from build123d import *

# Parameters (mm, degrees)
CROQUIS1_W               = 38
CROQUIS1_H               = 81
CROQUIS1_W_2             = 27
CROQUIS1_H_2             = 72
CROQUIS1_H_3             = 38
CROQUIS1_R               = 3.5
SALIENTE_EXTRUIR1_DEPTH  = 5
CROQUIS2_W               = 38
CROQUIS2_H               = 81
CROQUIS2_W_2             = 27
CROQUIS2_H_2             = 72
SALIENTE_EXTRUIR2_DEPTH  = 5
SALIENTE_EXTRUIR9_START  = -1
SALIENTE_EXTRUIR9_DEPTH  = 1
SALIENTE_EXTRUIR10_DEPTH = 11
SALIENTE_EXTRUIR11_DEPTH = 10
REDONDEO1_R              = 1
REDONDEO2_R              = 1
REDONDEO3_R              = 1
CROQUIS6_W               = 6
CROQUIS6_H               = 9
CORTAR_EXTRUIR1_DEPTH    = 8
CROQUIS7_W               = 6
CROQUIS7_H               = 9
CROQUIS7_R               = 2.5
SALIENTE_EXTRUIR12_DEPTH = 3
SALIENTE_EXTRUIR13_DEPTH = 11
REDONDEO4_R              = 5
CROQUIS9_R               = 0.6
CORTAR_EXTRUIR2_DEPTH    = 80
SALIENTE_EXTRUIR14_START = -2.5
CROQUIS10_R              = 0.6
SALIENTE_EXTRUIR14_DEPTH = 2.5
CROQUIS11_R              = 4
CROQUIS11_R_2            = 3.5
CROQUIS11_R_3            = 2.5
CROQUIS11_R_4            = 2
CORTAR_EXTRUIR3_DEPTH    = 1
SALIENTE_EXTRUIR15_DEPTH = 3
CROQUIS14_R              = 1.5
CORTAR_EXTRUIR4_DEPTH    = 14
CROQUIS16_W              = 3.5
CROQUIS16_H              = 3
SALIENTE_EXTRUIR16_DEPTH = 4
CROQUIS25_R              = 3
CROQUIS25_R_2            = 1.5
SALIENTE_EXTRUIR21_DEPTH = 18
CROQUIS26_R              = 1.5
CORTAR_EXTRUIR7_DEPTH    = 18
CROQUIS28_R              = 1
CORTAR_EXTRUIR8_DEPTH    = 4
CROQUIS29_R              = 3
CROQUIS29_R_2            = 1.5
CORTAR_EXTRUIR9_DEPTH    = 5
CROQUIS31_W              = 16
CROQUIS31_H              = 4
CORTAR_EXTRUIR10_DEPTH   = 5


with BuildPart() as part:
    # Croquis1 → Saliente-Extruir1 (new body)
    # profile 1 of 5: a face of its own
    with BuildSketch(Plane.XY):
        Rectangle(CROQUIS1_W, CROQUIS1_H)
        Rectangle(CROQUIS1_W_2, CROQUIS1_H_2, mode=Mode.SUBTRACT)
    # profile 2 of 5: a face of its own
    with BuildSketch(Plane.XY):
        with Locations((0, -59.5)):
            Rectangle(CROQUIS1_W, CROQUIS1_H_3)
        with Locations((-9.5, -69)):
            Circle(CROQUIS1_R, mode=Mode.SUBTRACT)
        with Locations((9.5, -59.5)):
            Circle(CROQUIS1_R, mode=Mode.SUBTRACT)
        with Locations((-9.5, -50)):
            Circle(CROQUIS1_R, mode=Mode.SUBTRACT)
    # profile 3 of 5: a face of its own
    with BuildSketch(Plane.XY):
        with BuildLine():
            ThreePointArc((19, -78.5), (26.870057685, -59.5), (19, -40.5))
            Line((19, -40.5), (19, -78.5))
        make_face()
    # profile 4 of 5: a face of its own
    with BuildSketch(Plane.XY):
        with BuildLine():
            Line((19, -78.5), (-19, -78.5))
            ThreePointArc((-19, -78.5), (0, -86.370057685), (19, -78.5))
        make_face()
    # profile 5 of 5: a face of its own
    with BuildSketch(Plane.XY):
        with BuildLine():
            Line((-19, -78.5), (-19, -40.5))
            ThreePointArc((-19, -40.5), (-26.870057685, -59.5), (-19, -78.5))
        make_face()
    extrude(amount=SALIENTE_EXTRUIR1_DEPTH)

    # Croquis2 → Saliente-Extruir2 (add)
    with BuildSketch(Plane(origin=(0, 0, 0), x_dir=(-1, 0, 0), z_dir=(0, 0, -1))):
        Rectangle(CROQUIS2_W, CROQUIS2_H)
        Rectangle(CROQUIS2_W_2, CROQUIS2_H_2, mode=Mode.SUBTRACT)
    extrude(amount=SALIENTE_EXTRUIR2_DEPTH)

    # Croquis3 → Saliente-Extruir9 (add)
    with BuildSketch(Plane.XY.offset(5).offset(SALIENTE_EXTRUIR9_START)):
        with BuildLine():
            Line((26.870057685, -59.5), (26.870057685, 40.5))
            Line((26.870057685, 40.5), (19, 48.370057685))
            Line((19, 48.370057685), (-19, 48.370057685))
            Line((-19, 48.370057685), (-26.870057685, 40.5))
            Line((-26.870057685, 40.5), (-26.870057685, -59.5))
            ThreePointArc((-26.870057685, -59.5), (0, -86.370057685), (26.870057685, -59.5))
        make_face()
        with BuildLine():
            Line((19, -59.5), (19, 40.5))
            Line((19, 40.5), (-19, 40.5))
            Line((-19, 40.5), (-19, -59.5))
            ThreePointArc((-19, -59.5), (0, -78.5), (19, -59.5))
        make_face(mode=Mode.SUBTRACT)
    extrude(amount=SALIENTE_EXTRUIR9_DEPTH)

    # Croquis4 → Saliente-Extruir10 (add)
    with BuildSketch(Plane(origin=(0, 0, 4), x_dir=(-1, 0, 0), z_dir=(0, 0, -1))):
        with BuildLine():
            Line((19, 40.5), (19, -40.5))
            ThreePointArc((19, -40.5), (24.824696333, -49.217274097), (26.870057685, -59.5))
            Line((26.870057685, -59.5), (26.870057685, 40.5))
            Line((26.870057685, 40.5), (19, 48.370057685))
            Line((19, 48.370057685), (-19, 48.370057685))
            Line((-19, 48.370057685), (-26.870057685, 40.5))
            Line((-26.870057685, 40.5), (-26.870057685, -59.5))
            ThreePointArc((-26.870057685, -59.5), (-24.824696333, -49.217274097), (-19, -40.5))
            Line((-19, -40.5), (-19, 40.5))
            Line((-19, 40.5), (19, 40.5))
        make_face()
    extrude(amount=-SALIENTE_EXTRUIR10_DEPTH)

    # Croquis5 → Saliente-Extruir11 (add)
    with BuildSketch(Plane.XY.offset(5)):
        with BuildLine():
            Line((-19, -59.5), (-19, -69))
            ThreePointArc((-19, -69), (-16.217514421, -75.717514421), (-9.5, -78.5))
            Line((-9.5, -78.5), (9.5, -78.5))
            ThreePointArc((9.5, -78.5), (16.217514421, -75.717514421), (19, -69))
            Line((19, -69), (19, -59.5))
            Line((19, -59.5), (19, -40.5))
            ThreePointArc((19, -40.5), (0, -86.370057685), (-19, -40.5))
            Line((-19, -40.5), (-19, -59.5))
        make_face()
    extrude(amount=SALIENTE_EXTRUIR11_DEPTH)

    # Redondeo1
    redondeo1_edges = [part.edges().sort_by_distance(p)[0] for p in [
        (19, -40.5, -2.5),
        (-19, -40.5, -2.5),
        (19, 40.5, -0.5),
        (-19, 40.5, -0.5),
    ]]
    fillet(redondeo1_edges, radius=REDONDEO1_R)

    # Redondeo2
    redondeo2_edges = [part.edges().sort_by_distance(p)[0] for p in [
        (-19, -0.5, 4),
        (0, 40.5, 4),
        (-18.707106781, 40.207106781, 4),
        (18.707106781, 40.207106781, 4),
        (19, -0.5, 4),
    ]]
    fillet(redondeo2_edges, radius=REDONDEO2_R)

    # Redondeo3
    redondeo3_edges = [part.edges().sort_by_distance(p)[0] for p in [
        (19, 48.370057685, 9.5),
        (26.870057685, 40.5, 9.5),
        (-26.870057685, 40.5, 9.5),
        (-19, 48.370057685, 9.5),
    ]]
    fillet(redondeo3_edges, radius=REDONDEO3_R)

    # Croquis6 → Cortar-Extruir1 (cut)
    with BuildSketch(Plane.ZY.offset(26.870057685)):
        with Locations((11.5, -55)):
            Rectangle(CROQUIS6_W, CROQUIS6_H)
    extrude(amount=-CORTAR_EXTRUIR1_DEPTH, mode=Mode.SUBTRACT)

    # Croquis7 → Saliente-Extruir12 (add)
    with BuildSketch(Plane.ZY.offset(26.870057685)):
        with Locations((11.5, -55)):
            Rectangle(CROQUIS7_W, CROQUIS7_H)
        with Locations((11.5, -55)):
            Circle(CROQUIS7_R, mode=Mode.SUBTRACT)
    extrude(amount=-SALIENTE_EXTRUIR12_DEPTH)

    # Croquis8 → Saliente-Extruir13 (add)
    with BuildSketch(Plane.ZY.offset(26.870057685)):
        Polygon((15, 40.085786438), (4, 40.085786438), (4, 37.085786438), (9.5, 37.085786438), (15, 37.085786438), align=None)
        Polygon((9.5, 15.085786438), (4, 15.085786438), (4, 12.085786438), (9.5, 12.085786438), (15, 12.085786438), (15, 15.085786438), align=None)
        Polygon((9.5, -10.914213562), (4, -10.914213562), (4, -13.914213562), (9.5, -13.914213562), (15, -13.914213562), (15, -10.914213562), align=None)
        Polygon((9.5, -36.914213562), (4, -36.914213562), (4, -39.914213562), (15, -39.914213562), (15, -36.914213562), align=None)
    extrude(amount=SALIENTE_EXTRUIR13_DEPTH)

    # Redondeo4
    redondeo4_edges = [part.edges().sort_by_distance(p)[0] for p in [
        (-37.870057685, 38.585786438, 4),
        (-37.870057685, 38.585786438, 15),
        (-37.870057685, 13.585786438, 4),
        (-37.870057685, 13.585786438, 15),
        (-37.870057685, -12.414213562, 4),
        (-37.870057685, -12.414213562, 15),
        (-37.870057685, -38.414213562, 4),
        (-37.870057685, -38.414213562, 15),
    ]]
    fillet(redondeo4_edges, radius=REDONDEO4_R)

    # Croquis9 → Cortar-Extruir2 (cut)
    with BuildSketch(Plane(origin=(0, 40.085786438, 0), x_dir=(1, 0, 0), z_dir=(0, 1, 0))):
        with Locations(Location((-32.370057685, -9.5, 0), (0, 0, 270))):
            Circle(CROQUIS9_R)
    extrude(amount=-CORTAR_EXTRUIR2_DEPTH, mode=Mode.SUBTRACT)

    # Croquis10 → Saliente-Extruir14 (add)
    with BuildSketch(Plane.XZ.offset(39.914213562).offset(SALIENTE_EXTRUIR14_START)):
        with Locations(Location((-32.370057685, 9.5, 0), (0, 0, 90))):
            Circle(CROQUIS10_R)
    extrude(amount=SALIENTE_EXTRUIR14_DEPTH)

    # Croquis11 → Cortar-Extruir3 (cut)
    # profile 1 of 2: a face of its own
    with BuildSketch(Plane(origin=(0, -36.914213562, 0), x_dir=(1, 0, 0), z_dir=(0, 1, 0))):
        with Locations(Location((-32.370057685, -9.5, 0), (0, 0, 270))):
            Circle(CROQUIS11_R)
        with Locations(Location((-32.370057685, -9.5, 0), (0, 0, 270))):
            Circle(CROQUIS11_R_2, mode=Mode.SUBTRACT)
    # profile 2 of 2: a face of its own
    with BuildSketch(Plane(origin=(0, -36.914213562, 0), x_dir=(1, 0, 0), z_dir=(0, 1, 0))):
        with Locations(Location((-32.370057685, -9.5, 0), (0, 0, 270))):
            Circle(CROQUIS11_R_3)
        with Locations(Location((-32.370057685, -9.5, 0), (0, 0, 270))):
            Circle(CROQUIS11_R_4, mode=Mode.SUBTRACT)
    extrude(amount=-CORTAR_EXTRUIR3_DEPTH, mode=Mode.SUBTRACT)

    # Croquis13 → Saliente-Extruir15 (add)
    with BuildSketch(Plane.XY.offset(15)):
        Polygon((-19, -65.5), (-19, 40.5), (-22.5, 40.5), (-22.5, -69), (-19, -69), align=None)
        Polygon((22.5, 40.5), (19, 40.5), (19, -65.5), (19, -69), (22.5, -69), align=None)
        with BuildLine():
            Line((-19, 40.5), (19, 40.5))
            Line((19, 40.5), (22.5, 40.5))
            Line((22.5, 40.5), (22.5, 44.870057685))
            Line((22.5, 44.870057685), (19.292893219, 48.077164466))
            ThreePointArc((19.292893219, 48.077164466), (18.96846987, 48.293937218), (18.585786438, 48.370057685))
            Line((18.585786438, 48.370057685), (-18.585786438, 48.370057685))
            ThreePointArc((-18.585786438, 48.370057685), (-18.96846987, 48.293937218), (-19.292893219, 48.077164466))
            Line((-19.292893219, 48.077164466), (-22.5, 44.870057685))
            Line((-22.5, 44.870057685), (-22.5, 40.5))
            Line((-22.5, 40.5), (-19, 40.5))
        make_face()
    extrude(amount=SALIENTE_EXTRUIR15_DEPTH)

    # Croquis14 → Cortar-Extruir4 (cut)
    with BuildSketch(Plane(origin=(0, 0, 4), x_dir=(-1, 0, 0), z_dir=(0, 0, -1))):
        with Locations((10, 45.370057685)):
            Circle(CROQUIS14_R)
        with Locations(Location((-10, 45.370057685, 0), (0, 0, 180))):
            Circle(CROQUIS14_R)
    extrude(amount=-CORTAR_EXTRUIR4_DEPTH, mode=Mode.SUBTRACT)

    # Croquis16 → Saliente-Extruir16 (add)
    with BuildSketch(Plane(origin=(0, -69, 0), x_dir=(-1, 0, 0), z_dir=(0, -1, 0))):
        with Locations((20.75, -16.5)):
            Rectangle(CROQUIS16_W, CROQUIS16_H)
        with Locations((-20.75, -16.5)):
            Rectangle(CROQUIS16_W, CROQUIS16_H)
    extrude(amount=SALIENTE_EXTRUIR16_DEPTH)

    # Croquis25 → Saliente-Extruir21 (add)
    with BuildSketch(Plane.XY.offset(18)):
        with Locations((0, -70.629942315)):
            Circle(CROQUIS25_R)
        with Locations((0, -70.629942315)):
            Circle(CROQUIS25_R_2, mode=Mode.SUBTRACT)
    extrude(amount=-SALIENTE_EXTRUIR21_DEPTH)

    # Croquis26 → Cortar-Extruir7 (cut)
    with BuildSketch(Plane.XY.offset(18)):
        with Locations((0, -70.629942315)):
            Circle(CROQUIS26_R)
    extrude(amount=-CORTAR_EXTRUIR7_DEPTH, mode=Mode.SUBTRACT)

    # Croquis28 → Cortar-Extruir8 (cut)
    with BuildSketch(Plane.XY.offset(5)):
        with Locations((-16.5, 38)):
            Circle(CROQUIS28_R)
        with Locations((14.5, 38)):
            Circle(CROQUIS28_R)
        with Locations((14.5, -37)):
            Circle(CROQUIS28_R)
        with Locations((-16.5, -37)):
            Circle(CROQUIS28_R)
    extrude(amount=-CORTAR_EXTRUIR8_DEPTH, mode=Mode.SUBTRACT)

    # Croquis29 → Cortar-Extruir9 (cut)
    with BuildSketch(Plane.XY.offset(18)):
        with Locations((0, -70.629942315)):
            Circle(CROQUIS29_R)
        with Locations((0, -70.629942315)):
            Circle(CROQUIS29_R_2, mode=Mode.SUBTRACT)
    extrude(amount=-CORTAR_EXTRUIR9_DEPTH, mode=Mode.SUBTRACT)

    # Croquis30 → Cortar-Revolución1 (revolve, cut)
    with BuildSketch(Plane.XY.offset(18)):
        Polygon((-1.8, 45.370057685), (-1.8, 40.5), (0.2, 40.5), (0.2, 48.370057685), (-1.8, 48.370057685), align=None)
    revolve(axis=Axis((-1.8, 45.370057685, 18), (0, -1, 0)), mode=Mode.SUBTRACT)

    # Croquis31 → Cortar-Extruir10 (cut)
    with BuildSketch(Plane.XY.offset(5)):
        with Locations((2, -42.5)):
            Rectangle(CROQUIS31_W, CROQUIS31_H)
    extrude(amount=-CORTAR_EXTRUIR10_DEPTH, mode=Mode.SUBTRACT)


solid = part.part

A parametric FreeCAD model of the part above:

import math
import FreeCAD as App
import Part
import Sketcher

V = App.Vector


def edges_at(feature, points):
    """Names of the edges that pass closest to the given points."""
    edges = feature.Shape.Edges
    near = lambda p: min(range(len(edges)), key=lambda i: edges[i].distToShape(Part.Vertex(*p))[0])
    return sorted({f"Edge{near(p) + 1}" for p in points})

doc = App.newDocument("Part")
body = doc.addObject("PartDesign::Body", "Body")

# Sketch on XY plane
sketch1 = body.newObject("Sketcher::SketchObject", "Sketch")
sketch1.AttachmentSupport = (doc.getObject("XY_Plane"), [""])
sketch1.MapMode = "FlatFace"
sketch1.addGeometry(Part.LineSegment(V(-19, 40.5, 0), V(-19, -40.5, 0)), False)
sketch1.addGeometry(Part.ArcOfCircle(Part.Circle(V(0, -59.5, 0), V(0, 0, 1), 26.9), math.radians(135), math.radians(225)), False)
sketch1.addGeometry(Part.ArcOfCircle(Part.Circle(V(0, -59.5, 0), V(0, 0, 1), 26.9), math.radians(-135), math.radians(-45)), False)
sketch1.addGeometry(Part.ArcOfCircle(Part.Circle(V(0, -59.5, 0), V(0, 0, 1), 26.9), math.radians(-45), math.radians(45)), False)
sketch1.addGeometry(Part.LineSegment(V(19, -40.5, 0), V(19, 40.5, 0)), False)
sketch1.addGeometry(Part.LineSegment(V(19, 40.5, 0), V(-19, 40.5, 0)), False)
sketch1.addGeometry(Part.LineSegment(V(13.5, -36, 0), V(-13.5, -36, 0)), False)
sketch1.addGeometry(Part.LineSegment(V(-13.5, -36, 0), V(-13.5, 36, 0)), False)
sketch1.addGeometry(Part.LineSegment(V(-13.5, 36, 0), V(13.5, 36, 0)), False)
sketch1.addGeometry(Part.LineSegment(V(13.5, 36, 0), V(13.5, -36, 0)), False)
sketch1.addGeometry(Part.Circle(V(9.5, -59.5, 0), V(0, 0, 1), 3.5), False)
sketch1.addGeometry(Part.Circle(V(-9.5, -69, 0), V(0, 0, 1), 3.5), False)
sketch1.addGeometry(Part.Circle(V(-9.5, -50, 0), V(0, 0, 1), 3.5), False)
sketch1.addConstraint(Sketcher.Constraint("Coincident", 0, 2, 1, 1))
sketch1.addConstraint(Sketcher.Constraint("Tangent", 1, 2, 2, 1))
sketch1.addConstraint(Sketcher.Constraint("Tangent", 2, 2, 3, 1))
sketch1.addConstraint(Sketcher.Constraint("Coincident", 3, 2, 4, 1))
sketch1.addConstraint(Sketcher.Constraint("Coincident", 4, 2, 5, 1))
sketch1.addConstraint(Sketcher.Constraint("Coincident", 5, 2, 0, 1))
sketch1.addConstraint(Sketcher.Constraint("Coincident", 6, 2, 7, 1))
sketch1.addConstraint(Sketcher.Constraint("Coincident", 7, 2, 8, 1))
sketch1.addConstraint(Sketcher.Constraint("Coincident", 8, 2, 9, 1))
sketch1.addConstraint(Sketcher.Constraint("Coincident", 9, 2, 6, 1))
sketch1.addConstraint(Sketcher.Constraint("Vertical", 0))
sketch1.addConstraint(Sketcher.Constraint("Vertical", 4))
sketch1.addConstraint(Sketcher.Constraint("Horizontal", 5))
sketch1.addConstraint(Sketcher.Constraint("Horizontal", 6))
sketch1.addConstraint(Sketcher.Constraint("Vertical", 7))
sketch1.addConstraint(Sketcher.Constraint("Horizontal", 8))
sketch1.addConstraint(Sketcher.Constraint("Vertical", 9))
sketch1.addConstraint(Sketcher.Constraint("Coincident", 3, 3, 1, 3))
sketch1.addConstraint(Sketcher.Constraint("Equal", 10, 11))
sketch1.addConstraint(Sketcher.Constraint("Equal", 11, 12))
sketch1.addConstraint(Sketcher.Constraint("Symmetric", 0, 2, 4, 2, -1, 1))
sketch1.addConstraint(Sketcher.Constraint("Symmetric", 6, 2, 8, 2, -1, 1))
sketch1.addConstraint(Sketcher.Constraint("Symmetric", 1, 2, 2, 2, -2))
sketch1.addConstraint(Sketcher.Constraint("Horizontal", 3, 3, 10, 3))
sketch1.addConstraint(Sketcher.Constraint("Vertical", 11, 3, 12, 3))
sketch1.addConstraint(Sketcher.Constraint("Vertical", 0, 2, 1, 2))
sketch1.addConstraint(Sketcher.Constraint("Diameter", 10, 7.0))
sketch1.addConstraint(Sketcher.Constraint("DistanceX", 5, 2, 5, 1, 38.0))
sketch1.addConstraint(Sketcher.Constraint("DistanceX", 6, 2, 6, 1, 27.0))
sketch1.addConstraint(Sketcher.Constraint("DistanceY", 0, 2, 0, 1, 81.0))
sketch1.addConstraint(Sketcher.Constraint("DistanceY", 7, 1, 7, 2, 72.0))
sketch1.addConstraint(Sketcher.Constraint("DistanceY", 11, 3, -1, 1, 69.0))
sketch1.addConstraint(Sketcher.Constraint("DistanceY", 12, 3, -1, 1, 50.0))
sketch1.addConstraint(Sketcher.Constraint("DistanceX", 11, 3, 10, 3, 19.0))
sketch1.addConstraint(Sketcher.Constraint("DistanceY", 1, 3, 0, 2, 19.0))
sketch1.addConstraint(Sketcher.Constraint("DistanceX", 6, 2, 12, 3, 4.0))
pad1 = body.newObject("PartDesign::Pad", "Pad")
pad1.Profile = sketch1
pad1.Length = 5

# Sketch on XY plane
sketch2 = body.newObject("Sketcher::SketchObject", "Sketch001")
sketch2.AttachmentSupport = (doc.getObject("XY_Plane"), [""])
sketch2.MapMode = "FlatFace"
sketch2.addGeometry(Part.LineSegment(V(19, 40, 0), V(19, -40, 0)), False)
sketch2.addGeometry(Part.LineSegment(V(19, -40, 0), V(-19, -40, 0)), False)
sketch2.addGeometry(Part.LineSegment(V(-19, -40, 0), V(-19, 40, 0)), False)
sketch2.addGeometry(Part.LineSegment(V(-19, 40, 0), V(19, 40, 0)), False)
sketch2.addGeometry(Part.LineSegment(V(-14, -36, 0), V(14, -36, 0)), False)
sketch2.addGeometry(Part.LineSegment(V(14, -36, 0), V(14, 36, 0)), False)
sketch2.addGeometry(Part.LineSegment(V(14, 36, 0), V(-14, 36, 0)), False)
sketch2.addGeometry(Part.LineSegment(V(-14, 36, 0), V(-14, -36, 0)), False)
sketch2.addConstraint(Sketcher.Constraint("Coincident", 0, 2, 1, 1))
sketch2.addConstraint(Sketcher.Constraint("Coincident", 1, 2, 2, 1))
sketch2.addConstraint(Sketcher.Constraint("Coincident", 2, 2, 3, 1))
sketch2.addConstraint(Sketcher.Constraint("Coincident", 3, 2, 0, 1))
sketch2.addConstraint(Sketcher.Constraint("Coincident", 4, 2, 5, 1))
sketch2.addConstraint(Sketcher.Constraint("Coincident", 5, 2, 6, 1))
sketch2.addConstraint(Sketcher.Constraint("Coincident", 6, 2, 7, 1))
sketch2.addConstraint(Sketcher.Constraint("Coincident", 7, 2, 4, 1))
sketch2.addConstraint(Sketcher.Constraint("Vertical", 0))
sketch2.addConstraint(Sketcher.Constraint("Horizontal", 1))
sketch2.addConstraint(Sketcher.Constraint("Vertical", 2))
sketch2.addConstraint(Sketcher.Constraint("Horizontal", 3))
sketch2.addConstraint(Sketcher.Constraint("Horizontal", 4))
sketch2.addConstraint(Sketcher.Constraint("Vertical", 5))
sketch2.addConstraint(Sketcher.Constraint("Horizontal", 6))
sketch2.addConstraint(Sketcher.Constraint("Vertical", 7))
sketch2.addConstraint(Sketcher.Constraint("Symmetric", 0, 2, 2, 2, -1, 1))
sketch2.addConstraint(Sketcher.Constraint("Symmetric", 4, 2, 6, 2, -1, 1))
sketch2.addConstraint(Sketcher.Constraint("DistanceX", 1, 2, 1, 1, 38.0))
sketch2.addConstraint(Sketcher.Constraint("DistanceX", 4, 1, 4, 2, 27.0))
sketch2.addConstraint(Sketcher.Constraint("DistanceY", 0, 2, 0, 1, 81.0))
sketch2.addConstraint(Sketcher.Constraint("DistanceY", 5, 1, 5, 2, 72.0))
pad2 = body.newObject("PartDesign::Pad", "Pad001")
pad2.Profile = sketch2
pad2.Length = 5
pad2.Reversed = True

# Sketch on XY plane
sketch3 = body.newObject("Sketcher::SketchObject", "Sketch002")
sketch3.AttachmentSupport = (doc.getObject("XY_Plane"), [""])
sketch3.MapMode = "FlatFace"
sketch3.AttachmentOffset = App.Placement(V(0, 0, 4), App.Rotation())
sketch3.addGeometry(Part.LineSegment(V(27, -60, 0), V(27, 40, 0)), False)
sketch3.addGeometry(Part.LineSegment(V(27, 40, 0), V(19, 48, 0)), False)
sketch3.addGeometry(Part.LineSegment(V(19, 48, 0), V(-19, 48, 0)), False)
sketch3.addGeometry(Part.LineSegment(V(-19, 48, 0), V(-27, 40, 0)), False)
sketch3.addGeometry(Part.LineSegment(V(-27, 40, 0), V(-27, -60, 0)), False)
sketch3.addGeometry(Part.ArcOfCircle(Part.Circle(V(0, -60, 0), V(0, 0, 1), 27), math.radians(180), math.radians(360)), False)
sketch3.addGeometry(Part.LineSegment(V(19, 40, 0), V(19, -60, 0)), False)
sketch3.addGeometry(Part.ArcOfCircle(Part.Circle(V(0, -60, 0), V(0, 0, 1), 19), math.radians(180), math.radians(360)), False)
sketch3.addGeometry(Part.LineSegment(V(-19, -60, 0), V(-19, 40, 0)), False)
sketch3.addGeometry(Part.LineSegment(V(-19, 40, 0), V(19, 40, 0)), False)
sketch3.addConstraint(Sketcher.Constraint("Coincident", 0, 2, 1, 1))
sketch3.addConstraint(Sketcher.Constraint("Coincident", 1, 2, 2, 1))
sketch3.addConstraint(Sketcher.Constraint("Coincident", 2, 2, 3, 1))
sketch3.addConstraint(Sketcher.Constraint("Coincident", 3, 2, 4, 1))
sketch3.addConstraint(Sketcher.Constraint("Tangent", 4, 2, 5, 1))
sketch3.addConstraint(Sketcher.Constraint("Tangent", 5, 2, 0, 1))
sketch3.addConstraint(Sketcher.Constraint("Tangent", 6, 2, 7, 2))
sketch3.addConstraint(Sketcher.Constraint("Tangent", 7, 1, 8, 1))
sketch3.addConstraint(Sketcher.Constraint("Coincident", 8, 2, 9, 1))
sketch3.addConstraint(Sketcher.Constraint("Coincident", 9, 2, 6, 1))
sketch3.addConstraint(Sketcher.Constraint("Vertical", 0))
sketch3.addConstraint(Sketcher.Constraint("Horizontal", 2))
sketch3.addConstraint(Sketcher.Constraint("Vertical", 4))
sketch3.addConstraint(Sketcher.Constraint("Vertical", 6))
sketch3.addConstraint(Sketcher.Constraint("Vertical", 8))
sketch3.addConstraint(Sketcher.Constraint("Horizontal", 9))
sketch3.addConstraint(Sketcher.Constraint("Coincident", 7, 3, 5, 3))
sketch3.addConstraint(Sketcher.Constraint("Symmetric", 0, 2, 3, 2, -2))
sketch3.addConstraint(Sketcher.Constraint("Perpendicular", 1, 3))
sketch3.addConstraint(Sketcher.Constraint("Horizontal", 3, 2, 8, 2))
sketch3.addConstraint(Sketcher.Constraint("Vertical", 1, 2, 6, 2))
sketch3.addConstraint(Sketcher.Constraint("Vertical", 2, 2, 7, 1))
sketch3.addConstraint(Sketcher.Constraint("Radius", 7, 19.0))
sketch3.addConstraint(Sketcher.Constraint("DistanceY", 0, 1, 0, 2, 100.0))
sketch3.addConstraint(Sketcher.Constraint("DistanceY", 5, 3, -1, 1, 59.5))
sketch3.addConstraint(Sketcher.Constraint("Radius", 5, 26.870058))
pad3 = body.newObject("PartDesign::Pad", "Pad002")
pad3.Profile = sketch3
pad3.Length = 1

# Sketch on XY plane
sketch4 = body.newObject("Sketcher::SketchObject", "Sketch003")
sketch4.AttachmentSupport = (doc.getObject("XY_Plane"), [""])
sketch4.MapMode = "FlatFace"
sketch4.AttachmentOffset = App.Placement(V(0, 0, 4), App.Rotation())
sketch4.addGeometry(Part.LineSegment(V(-19, 40, 0), V(-19, -40, 0)), False)
sketch4.addGeometry(Part.ArcOfCircle(Part.Circle(V(0, -59, 0), V(0, 0, 1), 27), math.radians(135), math.radians(180)), False)
sketch4.addGeometry(Part.LineSegment(V(-27, -60, 0), V(-27, 40, 0)), False)
sketch4.addGeometry(Part.LineSegment(V(-27, 40, 0), V(-19, 48, 0)), False)
sketch4.addGeometry(Part.LineSegment(V(-19, 48, 0), V(19, 48, 0)), False)
sketch4.addGeometry(Part.LineSegment(V(19, 48, 0), V(27, 40, 0)), False)
sketch4.addGeometry(Part.LineSegment(V(27, 40, 0), V(27, -60, 0)), False)
sketch4.addGeometry(Part.ArcOfCircle(Part.Circle(V(0, -59, 0), V(0, 0, 1), 27), math.radians(0), math.radians(45)), False)
sketch4.addGeometry(Part.LineSegment(V(19, -40, 0), V(19, 40, 0)), False)
sketch4.addGeometry(Part.LineSegment(V(19, 40, 0), V(-19, 40, 0)), False)
sketch4.addConstraint(Sketcher.Constraint("Coincident", 0, 2, 1, 1))
sketch4.addConstraint(Sketcher.Constraint("Tangent", 1, 2, 2, 1))
sketch4.addConstraint(Sketcher.Constraint("Coincident", 2, 2, 3, 1))
sketch4.addConstraint(Sketcher.Constraint("Coincident", 3, 2, 4, 1))
sketch4.addConstraint(Sketcher.Constraint("Coincident", 4, 2, 5, 1))
sketch4.addConstraint(Sketcher.Constraint("Coincident", 5, 2, 6, 1))
sketch4.addConstraint(Sketcher.Constraint("Tangent", 6, 2, 7, 1))
sketch4.addConstraint(Sketcher.Constraint("Coincident", 7, 2, 8, 1))
sketch4.addConstraint(Sketcher.Constraint("Coincident", 8, 2, 9, 1))
sketch4.addConstraint(Sketcher.Constraint("Coincident", 9, 2, 0, 1))
sketch4.addConstraint(Sketcher.Constraint("Vertical", 0))
sketch4.addConstraint(Sketcher.Constraint("Vertical", 2))
sketch4.addConstraint(Sketcher.Constraint("Horizontal", 4))
sketch4.addConstraint(Sketcher.Constraint("Vertical", 6))
sketch4.addConstraint(Sketcher.Constraint("Vertical", 8))
sketch4.addConstraint(Sketcher.Constraint("Horizontal", 9))
sketch4.addConstraint(Sketcher.Constraint("Coincident", 7, 3, 1, 3))
sketch4.addConstraint(Sketcher.Constraint("Equal", 1, 7))
sketch4.addConstraint(Sketcher.Constraint("Symmetric", 0, 2, 8, 2, -1, 1))
sketch4.addConstraint(Sketcher.Constraint("Symmetric", 2, 2, 5, 2, -2))
sketch4.addConstraint(Sketcher.Constraint("Perpendicular", 3, 5))
sketch4.addConstraint(Sketcher.Constraint("Horizontal", 5, 2, 8, 2))
sketch4.addConstraint(Sketcher.Constraint("Vertical", 0, 2, 3, 2))
sketch4.addConstraint(Sketcher.Constraint("Vertical", 4, 2, 7, 2))
sketch4.addConstraint(Sketcher.Constraint("DistanceX", 4, 1, 4, 2, 38.0))
sketch4.addConstraint(Sketcher.Constraint("DistanceY", 0, 2, 0, 1, 81.0))
sketch4.addConstraint(Sketcher.Constraint("DistanceY", 2, 1, 2, 2, 100.0))
pad4 = body.newObject("PartDesign::Pad", "Pad003")
pad4.Profile = sketch4
pad4.Length = 11

# Sketch on XY plane
sketch5 = body.newObject("Sketcher::SketchObject", "Sketch004")
sketch5.AttachmentSupport = (doc.getObject("XY_Plane"), [""])
sketch5.MapMode = "FlatFace"
sketch5.AttachmentOffset = App.Placement(V(0, 0, 5), App.Rotation())
sketch5.addGeometry(Part.ArcOfCircle(Part.Circle(V(-9, -69, 0), V(0, 0, 1), 10), math.radians(-180), math.radians(-90)), False)
sketch5.addGeometry(Part.LineSegment(V(-19, -69, 0), V(-19, -40, 0)), False)
sketch5.addGeometry(Part.ArcOfCircle(Part.Circle(V(0, -60, 0), V(0, 0, 1), 27), math.radians(135), math.radians(405)), False)
sketch5.addGeometry(Part.LineSegment(V(19, -40, 0), V(19, -69, 0)), False)
sketch5.addGeometry(Part.ArcOfCircle(Part.Circle(V(9, -69, 0), V(0, 0, 1), 10), math.radians(-90), math.radians(0)), False)
sketch5.addGeometry(Part.LineSegment(V(10, -78, 0), V(-10, -78, 0)), False)
sketch5.addConstraint(Sketcher.Constraint("Tangent", 0, 1, 1, 1))
sketch5.addConstraint(Sketcher.Constraint("Coincident", 1, 2, 2, 1))
sketch5.addConstraint(Sketcher.Constraint("Coincident", 2, 2, 3, 1))
sketch5.addConstraint(Sketcher.Constraint("Tangent", 3, 2, 4, 2))
sketch5.addConstraint(Sketcher.Constraint("Tangent", 4, 1, 5, 1))
sketch5.addConstraint(Sketcher.Constraint("Tangent", 5, 2, 0, 2))
sketch5.addConstraint(Sketcher.Constraint("Vertical", 1))
sketch5.addConstraint(Sketcher.Constraint("Vertical", 3))
sketch5.addConstraint(Sketcher.Constraint("Horizontal", 5))
sketch5.addConstraint(Sketcher.Constraint("Equal", 0, 4))
sketch5.addConstraint(Sketcher.Constraint("Symmetric", 1, 2, 2, 2, -2))
sketch5.addConstraint(Sketcher.Constraint("Radius", 0, 9.5))
sketch5.addConstraint(Sketcher.Constraint("DistanceX", 5, 2, 5, 1, 19.0))
sketch5.addConstraint(Sketcher.Constraint("DistanceY", 1, 1, 1, 2, 28.5))
sketch5.addConstraint(Sketcher.Constraint("DistanceY", 0, 3, -1, 1, 69.0))
sketch5.addConstraint(Sketcher.Constraint("DistanceY", 2, 3, 1, 2, 19.0))
pad5 = body.newObject("PartDesign::Pad", "Pad004")
pad5.Profile = sketch5
pad5.Length = 10
doc.recompute()

fillet = body.newObject("PartDesign::Fillet", "Fillet")
fillet.Base = (pad5, edges_at(pad5, [
    (19, -40.5, -2.5),
    (-19, -40.5, -2.5),
    (19, 40.5, -0.5),
    (-19, 40.5, -0.5),
]))
fillet.Radius = 1
doc.recompute()

fillet2 = body.newObject("PartDesign::Fillet", "Fillet001")
fillet2.Base = (fillet, edges_at(fillet, [
    (-19, -0.5, 4),
    (0, 40.5, 4),
    (-18.707, 40.207, 4),
    (18.707, 40.207, 4),
    (19, -0.5, 4),
]))
fillet2.Radius = 1
doc.recompute()

fillet3 = body.newObject("PartDesign::Fillet", "Fillet002")
fillet3.Base = (fillet2, edges_at(fillet2, [
    (19, 48.37, 9.5),
    (26.87, 40.5, 9.5),
    (-26.87, 40.5, 9.5),
    (-19, 48.37, 9.5),
]))
fillet3.Radius = 1

# Sketch on YZ plane
sketch6 = body.newObject("Sketcher::SketchObject", "Sketch005")
sketch6.AttachmentSupport = (doc.getObject("YZ_Plane"), [""])
sketch6.MapMode = "FlatFace"
sketch6.AttachmentOffset = App.Placement(V(0, 0, -26.870058), App.Rotation())
sketch6.addGeometry(Part.LineSegment(V(-50, 8, 0), V(-60, 8, 0)), False)
sketch6.addGeometry(Part.LineSegment(V(-60, 8, 0), V(-60, 14, 0)), False)
sketch6.addGeometry(Part.LineSegment(V(-60, 14, 0), V(-50, 14, 0)), False)
sketch6.addGeometry(Part.LineSegment(V(-50, 14, 0), V(-50, 8, 0)), False)
sketch6.addConstraint(Sketcher.Constraint("Coincident", 0, 2, 1, 1))
sketch6.addConstraint(Sketcher.Constraint("Coincident", 1, 2, 2, 1))
sketch6.addConstraint(Sketcher.Constraint("Coincident", 2, 2, 3, 1))
sketch6.addConstraint(Sketcher.Constraint("Coincident", 3, 2, 0, 1))
sketch6.addConstraint(Sketcher.Constraint("Horizontal", 0))
sketch6.addConstraint(Sketcher.Constraint("Vertical", 1))
sketch6.addConstraint(Sketcher.Constraint("Horizontal", 2))
sketch6.addConstraint(Sketcher.Constraint("Vertical", 3))
sketch6.addConstraint(Sketcher.Constraint("DistanceX", 0, 2, 0, 1, 9.0))
sketch6.addConstraint(Sketcher.Constraint("DistanceY", 1, 1, 1, 2, 6.0))
sketch6.addConstraint(Sketcher.Constraint("DistanceX", 0, 2, -1, 1, 59.5))
sketch6.addConstraint(Sketcher.Constraint("DistanceY", -1, 1, 0, 2, 8.5))
pocket1 = body.newObject("PartDesign::Pocket", "Pocket")
pocket1.Profile = sketch6
pocket1.Length = 8
pocket1.Reversed = True

# Sketch on YZ plane
sketch7 = body.newObject("Sketcher::SketchObject", "Sketch006")
sketch7.AttachmentSupport = (doc.getObject("YZ_Plane"), [""])
sketch7.MapMode = "FlatFace"
sketch7.AttachmentOffset = App.Placement(V(0, 0, -26.870058), App.Rotation())
sketch7.addGeometry(Part.LineSegment(V(-50.5, 8.5, 0), V(-59.5, 8.5, 0)), False)
sketch7.addGeometry(Part.LineSegment(V(-59.5, 8.5, 0), V(-59.5, 14.5, 0)), False)
sketch7.addGeometry(Part.LineSegment(V(-59.5, 14.5, 0), V(-50.5, 14.5, 0)), False)
sketch7.addGeometry(Part.LineSegment(V(-50.5, 14.5, 0), V(-50.5, 8.5, 0)), False)
sketch7.addGeometry(Part.Circle(V(-55, 11.5, 0), V(0, 0, 1), 2.5), False)
sketch7.addConstraint(Sketcher.Constraint("Coincident", 0, 2, 1, 1))
sketch7.addConstraint(Sketcher.Constraint("Coincident", 1, 2, 2, 1))
sketch7.addConstraint(Sketcher.Constraint("Coincident", 2, 2, 3, 1))
sketch7.addConstraint(Sketcher.Constraint("Coincident", 3, 2, 0, 1))
sketch7.addConstraint(Sketcher.Constraint("Horizontal", 0))
sketch7.addConstraint(Sketcher.Constraint("Vertical", 1))
sketch7.addConstraint(Sketcher.Constraint("Horizontal", 2))
sketch7.addConstraint(Sketcher.Constraint("Vertical", 3))
sketch7.addConstraint(Sketcher.Constraint("Diameter", 4, 5.0))
sketch7.addConstraint(Sketcher.Constraint("DistanceX", 0, 2, 0, 1, 9.0))
sketch7.addConstraint(Sketcher.Constraint("DistanceY", 1, 1, 1, 2, 6.0))
sketch7.addConstraint(Sketcher.Constraint("DistanceX", 4, 3, -1, 1, 55.0))
sketch7.addConstraint(Sketcher.Constraint("DistanceY", 0, 2, 4, 3, 3.0))
sketch7.addConstraint(Sketcher.Constraint("DistanceY", -1, 1, 4, 3, 11.5))
sketch7.addConstraint(Sketcher.Constraint("DistanceX", 0, 2, -1, 1, 59.5))
pad6 = body.newObject("PartDesign::Pad", "Pad005")
pad6.Profile = sketch7
pad6.Length = 3

# Sketch on YZ plane
sketch8 = body.newObject("Sketcher::SketchObject", "Sketch007")
sketch8.AttachmentSupport = (doc.getObject("YZ_Plane"), [""])
sketch8.MapMode = "FlatFace"
sketch8.AttachmentOffset = App.Placement(V(0, 0, -26.870058), App.Rotation())
sketch8.addGeometry(Part.LineSegment(V(40.1, 15, 0), V(40.1, 4, 0)), False)
sketch8.addGeometry(Part.LineSegment(V(40.1, 4, 0), V(37.1, 4, 0)), False)
sketch8.addGeometry(Part.LineSegment(V(37.1, 4, 0), V(37.1, 15, 0)), False)
sketch8.addGeometry(Part.LineSegment(V(37.1, 15, 0), V(40.1, 15, 0)), False)
sketch8.addGeometry(Part.LineSegment(V(15.1, 4, 0), V(12.1, 4, 0)), False)
sketch8.addGeometry(Part.LineSegment(V(12.1, 4, 0), V(12.1, 15, 0)), False)
sketch8.addGeometry(Part.LineSegment(V(12.1, 15, 0), V(15.1, 15, 0)), False)
sketch8.addGeometry(Part.LineSegment(V(15.1, 15, 0), V(15.1, 4, 0)), False)
sketch8.addGeometry(Part.LineSegment(V(-10.9, 4, 0), V(-13.9, 4, 0)), False)
sketch8.addGeometry(Part.LineSegment(V(-13.9, 4, 0), V(-13.9, 15, 0)), False)
sketch8.addGeometry(Part.LineSegment(V(-13.9, 15, 0), V(-10.9, 15, 0)), False)
sketch8.addGeometry(Part.LineSegment(V(-10.9, 15, 0), V(-10.9, 4, 0)), False)
sketch8.addGeometry(Part.LineSegment(V(-36.9, 4, 0), V(-39.9, 4, 0)), False)
sketch8.addGeometry(Part.LineSegment(V(-39.9, 4, 0), V(-39.9, 15, 0)), False)
sketch8.addGeometry(Part.LineSegment(V(-39.9, 15, 0), V(-36.9, 15, 0)), False)
sketch8.addGeometry(Part.LineSegment(V(-36.9, 15, 0), V(-36.9, 4, 0)), False)
sketch8.addConstraint(Sketcher.Constraint("Coincident", 0, 2, 1, 1))
sketch8.addConstraint(Sketcher.Constraint("Coincident", 1, 2, 2, 1))
sketch8.addConstraint(Sketcher.Constraint("Coincident", 2, 2, 3, 1))
sketch8.addConstraint(Sketcher.Constraint("Coincident", 3, 2, 0, 1))
sketch8.addConstraint(Sketcher.Constraint("Coincident", 4, 2, 5, 1))
sketch8.addConstraint(Sketcher.Constraint("Coincident", 5, 2, 6, 1))
sketch8.addConstraint(Sketcher.Constraint("Coincident", 6, 2, 7, 1))
sketch8.addConstraint(Sketcher.Constraint("Coincident", 7, 2, 4, 1))
sketch8.addConstraint(Sketcher.Constraint("Coincident", 8, 2, 9, 1))
sketch8.addConstraint(Sketcher.Constraint("Coincident", 9, 2, 10, 1))
sketch8.addConstraint(Sketcher.Constraint("Coincident", 10, 2, 11, 1))
sketch8.addConstraint(Sketcher.Constraint("Coincident", 11, 2, 8, 1))
sketch8.addConstraint(Sketcher.Constraint("Coincident", 12, 2, 13, 1))
sketch8.addConstraint(Sketcher.Constraint("Coincident", 13, 2, 14, 1))
sketch8.addConstraint(Sketcher.Constraint("Coincident", 14, 2, 15, 1))
sketch8.addConstraint(Sketcher.Constraint("Coincident", 15, 2, 12, 1))
sketch8.addConstraint(Sketcher.Constraint("Vertical", 0))
sketch8.addConstraint(Sketcher.Constraint("Horizontal", 1))
sketch8.addConstraint(Sketcher.Constraint("Vertical", 2))
sketch8.addConstraint(Sketcher.Constraint("Horizontal", 3))
sketch8.addConstraint(Sketcher.Constraint("Horizontal", 4))
sketch8.addConstraint(Sketcher.Constraint("Vertical", 5))
sketch8.addConstraint(Sketcher.Constraint("Horizontal", 6))
sketch8.addConstraint(Sketcher.Constraint("Vertical", 7))
sketch8.addConstraint(Sketcher.Constraint("Horizontal", 8))
sketch8.addConstraint(Sketcher.Constraint("Vertical", 9))
sketch8.addConstraint(Sketcher.Constraint("Horizontal", 10))
sketch8.addConstraint(Sketcher.Constraint("Vertical", 11))
sketch8.addConstraint(Sketcher.Constraint("Horizontal", 12))
sketch8.addConstraint(Sketcher.Constraint("Vertical", 13))
sketch8.addConstraint(Sketcher.Constraint("Horizontal", 14))
sketch8.addConstraint(Sketcher.Constraint("Vertical", 15))
sketch8.addConstraint(Sketcher.Constraint("Horizontal", 1, 2, 4, 2))
sketch8.addConstraint(Sketcher.Constraint("Horizontal", 3, 2, 5, 2))
sketch8.addConstraint(Sketcher.Constraint("Horizontal", 7, 2, 8, 2))
sketch8.addConstraint(Sketcher.Constraint("Horizontal", 6, 2, 9, 2))
sketch8.addConstraint(Sketcher.Constraint("Horizontal", 11, 2, 12, 2))
sketch8.addConstraint(Sketcher.Constraint("Horizontal", 10, 2, 13, 2))
sketch8.addConstraint(Sketcher.Constraint("Equal", 3, 4))
sketch8.addConstraint(Sketcher.Constraint("Equal", 6, 8))
sketch8.addConstraint(Sketcher.Constraint("Equal", 10, 12))
sketch8.addConstraint(Sketcher.Constraint("DistanceX", 1, 2, 1, 1, 3.0))
sketch8.addConstraint(Sketcher.Constraint("DistanceY", 0, 2, 0, 1, 11.0))
sketch8.addConstraint(Sketcher.Constraint("DistanceY", -1, 1, 0, 2, 4.0))
sketch8.addConstraint(Sketcher.Constraint("DistanceX", 4, 2, 1, 2, 25.0))
sketch8.addConstraint(Sketcher.Constraint("DistanceX", 8, 2, 4, 2, 26.0))
sketch8.addConstraint(Sketcher.Constraint("DistanceX", 12, 2, 8, 2, 26.0))
sketch8.addConstraint(Sketcher.Constraint("DistanceX", -1, 1, 0, 2, 40.085786))
pad7 = body.newObject("PartDesign::Pad", "Pad006")
pad7.Profile = sketch8
pad7.Length = 11
pad7.Reversed = True
doc.recompute()

fillet4 = body.newObject("PartDesign::Fillet", "Fillet003")
fillet4.Base = (pad7, edges_at(pad7, [
    (-37.87, 38.586, 4),
    (-37.87, 38.586, 15),
    (-37.87, 13.586, 4),
    (-37.87, 13.586, 15),
    (-37.87, -12.414, 4),
    (-37.87, -12.414, 15),
    (-37.87, -38.414, 4),
    (-37.87, -38.414, 15),
]))
fillet4.Radius = 5

# Sketch on XZ plane
sketch9 = body.newObject("Sketcher::SketchObject", "Sketch008")
sketch9.AttachmentSupport = (doc.getObject("XZ_Plane"), [""])
sketch9.MapMode = "FlatFace"
sketch9.AttachmentOffset = App.Placement(V(0, 0, -40.085786), App.Rotation())
sketch9.addGeometry(Part.Circle(V(-32.4, 9.5, 0), V(0, 0, 1), 0.6), False)
sketch9.addConstraint(Sketcher.Constraint("Diameter", 0, 1.2))
sketch9.addConstraint(Sketcher.Constraint("DistanceY", -1, 1, 0, 3, 9.5))
sketch9.addConstraint(Sketcher.Constraint("DistanceX", 0, 3, -1, 1, 32.370058))
pocket2 = body.newObject("PartDesign::Pocket", "Pocket001")
pocket2.Profile = sketch9
pocket2.Length = 80
pocket2.Reversed = True

# Sketch on XZ plane
sketch10 = body.newObject("Sketcher::SketchObject", "Sketch009")
sketch10.AttachmentSupport = (doc.getObject("XZ_Plane"), [""])
sketch10.MapMode = "FlatFace"
sketch10.AttachmentOffset = App.Placement(V(0, 0, 37.414214), App.Rotation())
sketch10.addGeometry(Part.Circle(V(-32.4, 9.5, 0), V(0, 0, 1), 0.6), False)
sketch10.addConstraint(Sketcher.Constraint("Diameter", 0, 1.2))
sketch10.addConstraint(Sketcher.Constraint("DistanceY", -1, 1, 0, 3, 9.5))
sketch10.addConstraint(Sketcher.Constraint("DistanceX", 0, 3, -1, 1, 32.370058))
pad8 = body.newObject("PartDesign::Pad", "Pad007")
pad8.Profile = sketch10
pad8.Length = 2.5

# Sketch on XZ plane
sketch11 = body.newObject("Sketcher::SketchObject", "Sketch010")
sketch11.AttachmentSupport = (doc.getObject("XZ_Plane"), [""])
sketch11.MapMode = "FlatFace"
sketch11.AttachmentOffset = App.Placement(V(0, 0, 36.914214), App.Rotation())
sketch11.addGeometry(Part.Circle(V(-32.4, 9.5, 0), V(0, 0, 1), 4), False)
sketch11.addGeometry(Part.Circle(V(-32.4, 9.5, 0), V(0, 0, 1), 3.5), False)
sketch11.addGeometry(Part.Circle(V(-32.4, 9.5, 0), V(0, 0, 1), 2.5), False)
sketch11.addGeometry(Part.Circle(V(-32.4, 9.5, 0), V(0, 0, 1), 2), False)
sketch11.addConstraint(Sketcher.Constraint("Coincident", 1, 3, 0, 3))
sketch11.addConstraint(Sketcher.Constraint("Coincident", 2, 3, 0, 3))
sketch11.addConstraint(Sketcher.Constraint("Coincident", 3, 3, 0, 3))
sketch11.addConstraint(Sketcher.Constraint("Diameter", 0, 8.0))
sketch11.addConstraint(Sketcher.Constraint("Diameter", 1, 7.0))
sketch11.addConstraint(Sketcher.Constraint("Diameter", 2, 5.0))
sketch11.addConstraint(Sketcher.Constraint("Diameter", 3, 4.0))
sketch11.addConstraint(Sketcher.Constraint("DistanceY", -1, 1, 0, 3, 9.5))
sketch11.addConstraint(Sketcher.Constraint("DistanceX", 0, 3, -1, 1, 32.370058))
pocket3 = body.newObject("PartDesign::Pocket", "Pocket002")
pocket3.Profile = sketch11
pocket3.Length = 1
pocket3.Reversed = True

# Sketch on XY plane
sketch12 = body.newObject("Sketcher::SketchObject", "Sketch011")
sketch12.AttachmentSupport = (doc.getObject("XY_Plane"), [""])
sketch12.MapMode = "FlatFace"
sketch12.AttachmentOffset = App.Placement(V(0, 0, 15), App.Rotation())
sketch12.addGeometry(Part.LineSegment(V(-22.5, -69, 0), V(-19, -69, 0)), False)
sketch12.addGeometry(Part.LineSegment(V(-19, -69, 0), V(-19, 40.5, 0)), False)
sketch12.addGeometry(Part.LineSegment(V(-19, 40.5, 0), V(19, 40.5, 0)), False)
sketch12.addGeometry(Part.LineSegment(V(19, 40.5, 0), V(19, -69, 0)), False)
sketch12.addGeometry(Part.LineSegment(V(19, -69, 0), V(22.5, -69, 0)), False)
sketch12.addGeometry(Part.LineSegment(V(22.5, -69, 0), V(22.5, 44.9, 0)), False)
sketch12.addGeometry(Part.LineSegment(V(22.5, 44.9, 0), V(19.3, 48.1, 0)), False)
sketch12.addGeometry(Part.ArcOfCircle(Part.Circle(V(18.6, 47.4, 0), V(0, 0, 1), 1), math.radians(45), math.radians(90)), False)
sketch12.addGeometry(Part.LineSegment(V(18.6, 48.4, 0), V(-18.6, 48.4, 0)), False)
sketch12.addGeometry(Part.ArcOfCircle(Part.Circle(V(-18.6, 47.4, 0), V(0, 0, 1), 1), math.radians(90), math.radians(135)), False)
sketch12.addGeometry(Part.LineSegment(V(-19.3, 48.1, 0), V(-22.5, 44.9, 0)), False)
sketch12.addGeometry(Part.LineSegment(V(-22.5, 44.9, 0), V(-22.5, -69, 0)), False)
sketch12.addConstraint(Sketcher.Constraint("Coincident", 0, 2, 1, 1))
sketch12.addConstraint(Sketcher.Constraint("Coincident", 1, 2, 2, 1))
sketch12.addConstraint(Sketcher.Constraint("Coincident", 2, 2, 3, 1))
sketch12.addConstraint(Sketcher.Constraint("Coincident", 3, 2, 4, 1))
sketch12.addConstraint(Sketcher.Constraint("Coincident", 4, 2, 5, 1))
sketch12.addConstraint(Sketcher.Constraint("Coincident", 5, 2, 6, 1))
sketch12.addConstraint(Sketcher.Constraint("Tangent", 6, 2, 7, 1))
sketch12.addConstraint(Sketcher.Constraint("Tangent", 7, 2, 8, 1))
sketch12.addConstraint(Sketcher.Constraint("Tangent", 8, 2, 9, 1))
sketch12.addConstraint(Sketcher.Constraint("Tangent", 9, 2, 10, 1))
sketch12.addConstraint(Sketcher.Constraint("Coincident", 10, 2, 11, 1))
sketch12.addConstraint(Sketcher.Constraint("Coincident", 11, 2, 0, 1))
sketch12.addConstraint(Sketcher.Constraint("Horizontal", 0))
sketch12.addConstraint(Sketcher.Constraint("Vertical", 1))
sketch12.addConstraint(Sketcher.Constraint("Horizontal", 2))
sketch12.addConstraint(Sketcher.Constraint("Vertical", 3))
sketch12.addConstraint(Sketcher.Constraint("Horizontal", 4))
sketch12.addConstraint(Sketcher.Constraint("Vertical", 5))
sketch12.addConstraint(Sketcher.Constraint("Horizontal", 8))
sketch12.addConstraint(Sketcher.Constraint("Vertical", 11))
sketch12.addConstraint(Sketcher.Constraint("Equal", 7, 9))
sketch12.addConstraint(Sketcher.Constraint("Symmetric", 0, 2, 3, 2, -2))
sketch12.addConstraint(Sketcher.Constraint("Symmetric", 6, 2, 9, 2, -2))
sketch12.addConstraint(Sketcher.Constraint("Perpendicular", 6, 10))
sketch12.addConstraint(Sketcher.Constraint("Horizontal", 5, 2, 10, 2))
sketch12.addConstraint(Sketcher.Constraint("Radius", 7, 1.0))
sketch12.addConstraint(Sketcher.Constraint("DistanceX", 2, 1, 2, 2, 38.0))
sketch12.addConstraint(Sketcher.Constraint("DistanceX", 0, 1, 0, 2, 3.5))
sketch12.addConstraint(Sketcher.Constraint("DistanceY", 1, 1, 1, 2, 109.5))
sketch12.addConstraint(Sketcher.Constraint("DistanceY", 0, 2, -1, 1, 69.0))
sketch12.addConstraint(Sketcher.Constraint("DistanceY", 5, 2, 7, 3, 2.5))
sketch12.addConstraint(Sketcher.Constraint("DistanceY", 5, 1, 5, 2, 113.870058))
pad9 = body.newObject("PartDesign::Pad", "Pad008")
pad9.Profile = sketch12
pad9.Length = 3

# Sketch on XY plane
sketch13 = body.newObject("Sketcher::SketchObject", "Sketch012")
sketch13.AttachmentSupport = (doc.getObject("XY_Plane"), [""])
sketch13.MapMode = "FlatFace"
sketch13.AttachmentOffset = App.Placement(V(0, 0, 4), App.Rotation())
sketch13.addGeometry(Part.Circle(V(-10, 45.4, 0), V(0, 0, 1), 1.5), False)
sketch13.addGeometry(Part.Circle(V(10, 45.4, 0), V(0, 0, 1), 1.5), False)
sketch13.addConstraint(Sketcher.Constraint("Equal", 0, 1))
sketch13.addConstraint(Sketcher.Constraint("Symmetric", 0, 3, 1, 3, -2))
sketch13.addConstraint(Sketcher.Constraint("Diameter", 0, 3.0))
sketch13.addConstraint(Sketcher.Constraint("DistanceX", 0, 3, -1, 1, 10.0))
sketch13.addConstraint(Sketcher.Constraint("DistanceY", -1, 1, 0, 3, 45.370058))
pocket4 = body.newObject("PartDesign::Pocket", "Pocket003")
pocket4.Profile = sketch13
pocket4.Length = 14
pocket4.Reversed = True

# Sketch on XZ plane
sketch14 = body.newObject("Sketcher::SketchObject", "Sketch013")
sketch14.AttachmentSupport = (doc.getObject("XZ_Plane"), [""])
sketch14.MapMode = "FlatFace"
sketch14.AttachmentOffset = App.Placement(V(0, 0, 69), App.Rotation())
sketch14.addGeometry(Part.LineSegment(V(-19, 15, 0), V(-19, 18, 0)), False)
sketch14.addGeometry(Part.LineSegment(V(-19, 18, 0), V(-22.5, 18, 0)), False)
sketch14.addGeometry(Part.LineSegment(V(-22.5, 18, 0), V(-22.5, 15, 0)), False)
sketch14.addGeometry(Part.LineSegment(V(-22.5, 15, 0), V(-19, 15, 0)), False)
sketch14.addGeometry(Part.LineSegment(V(22.5, 15, 0), V(22.5, 18, 0)), False)
sketch14.addGeometry(Part.LineSegment(V(22.5, 18, 0), V(19, 18, 0)), False)
sketch14.addGeometry(Part.LineSegment(V(19, 18, 0), V(19, 15, 0)), False)
sketch14.addGeometry(Part.LineSegment(V(19, 15, 0), V(22.5, 15, 0)), False)
sketch14.addConstraint(Sketcher.Constraint("Coincident", 0, 2, 1, 1))
sketch14.addConstraint(Sketcher.Constraint("Coincident", 1, 2, 2, 1))
sketch14.addConstraint(Sketcher.Constraint("Coincident", 2, 2, 3, 1))
sketch14.addConstraint(Sketcher.Constraint("Coincident", 3, 2, 0, 1))
sketch14.addConstraint(Sketcher.Constraint("Coincident", 4, 2, 5, 1))
sketch14.addConstraint(Sketcher.Constraint("Coincident", 5, 2, 6, 1))
sketch14.addConstraint(Sketcher.Constraint("Coincident", 6, 2, 7, 1))
sketch14.addConstraint(Sketcher.Constraint("Coincident", 7, 2, 4, 1))
sketch14.addConstraint(Sketcher.Constraint("Vertical", 0))
sketch14.addConstraint(Sketcher.Constraint("Horizontal", 1))
sketch14.addConstraint(Sketcher.Constraint("Vertical", 2))
sketch14.addConstraint(Sketcher.Constraint("Horizontal", 3))
sketch14.addConstraint(Sketcher.Constraint("Vertical", 4))
sketch14.addConstraint(Sketcher.Constraint("Horizontal", 5))
sketch14.addConstraint(Sketcher.Constraint("Vertical", 6))
sketch14.addConstraint(Sketcher.Constraint("Horizontal", 7))
sketch14.addConstraint(Sketcher.Constraint("Symmetric", 1, 2, 4, 2, -2))
sketch14.addConstraint(Sketcher.Constraint("Symmetric", 3, 2, 6, 2, -2))
sketch14.addConstraint(Sketcher.Constraint("DistanceY", 0, 1, 0, 2, 3.0))
sketch14.addConstraint(Sketcher.Constraint("DistanceX", 1, 2, 1, 1, 3.5))
sketch14.addConstraint(Sketcher.Constraint("DistanceX", 0, 2, -1, 1, 19.0))
sketch14.addConstraint(Sketcher.Constraint("DistanceY", -1, 1, 0, 2, 18.0))
pad10 = body.newObject("PartDesign::Pad", "Pad009")
pad10.Profile = sketch14
pad10.Length = 4

# Sketch on XY plane
sketch15 = body.newObject("Sketcher::SketchObject", "Sketch014")
sketch15.AttachmentSupport = (doc.getObject("XY_Plane"), [""])
sketch15.MapMode = "FlatFace"
sketch15.AttachmentOffset = App.Placement(V(0, 0, 18), App.Rotation())
sketch15.addGeometry(Part.Circle(V(0, -70.6, 0), V(0, 0, 1), 3), False)
sketch15.addGeometry(Part.Circle(V(0, -70.6, 0), V(0, 0, 1), 1.5), False)
sketch15.addConstraint(Sketcher.Constraint("Coincident", 1, 3, 0, 3))
sketch15.addConstraint(Sketcher.Constraint("PointOnObject", 0, 3, -2))
sketch15.addConstraint(Sketcher.Constraint("Diameter", 0, 6.0))
sketch15.addConstraint(Sketcher.Constraint("Diameter", 1, 3.0))
sketch15.addConstraint(Sketcher.Constraint("DistanceY", 0, 3, -1, 1, 70.629942))
pad11 = body.newObject("PartDesign::Pad", "Pad010")
pad11.Profile = sketch15
pad11.Length = 18
pad11.Reversed = True

# Sketch on XY plane
sketch16 = body.newObject("Sketcher::SketchObject", "Sketch015")
sketch16.AttachmentSupport = (doc.getObject("XY_Plane"), [""])
sketch16.MapMode = "FlatFace"
sketch16.AttachmentOffset = App.Placement(V(0, 0, 18), App.Rotation())
sketch16.addGeometry(Part.Circle(V(0, -70.6, 0), V(0, 0, 1), 1.5), False)
sketch16.addConstraint(Sketcher.Constraint("PointOnObject", 0, 3, -2))
sketch16.addConstraint(Sketcher.Constraint("Diameter", 0, 3.0))
sketch16.addConstraint(Sketcher.Constraint("DistanceY", 0, 3, -1, 1, 70.629942))
pocket5 = body.newObject("PartDesign::Pocket", "Pocket004")
pocket5.Profile = sketch16
pocket5.Length = 18

# Sketch on XY plane
sketch17 = body.newObject("Sketcher::SketchObject", "Sketch016")
sketch17.AttachmentSupport = (doc.getObject("XY_Plane"), [""])
sketch17.MapMode = "FlatFace"
sketch17.AttachmentOffset = App.Placement(V(0, 0, 5), App.Rotation())
sketch17.addGeometry(Part.Circle(V(-16.5, 38, 0), V(0, 0, 1), 1), False)
sketch17.addGeometry(Part.Circle(V(14.5, 38, 0), V(0, 0, 1), 1), False)
sketch17.addGeometry(Part.Circle(V(14.5, -37, 0), V(0, 0, 1), 1), False)
sketch17.addGeometry(Part.Circle(V(-16.5, -37, 0), V(0, 0, 1), 1), False)
sketch17.addConstraint(Sketcher.Constraint("Equal", 0, 1))
sketch17.addConstraint(Sketcher.Constraint("Equal", 1, 2))
sketch17.addConstraint(Sketcher.Constraint("Equal", 2, 3))
sketch17.addConstraint(Sketcher.Constraint("Horizontal", 0, 3, 1, 3))
sketch17.addConstraint(Sketcher.Constraint("Horizontal", 2, 3, 3, 3))
sketch17.addConstraint(Sketcher.Constraint("Vertical", 1, 3, 2, 3))
sketch17.addConstraint(Sketcher.Constraint("Vertical", 0, 3, 3, 3))
sketch17.addConstraint(Sketcher.Constraint("Diameter", 0, 2.0))
sketch17.addConstraint(Sketcher.Constraint("DistanceY", -1, 1, 0, 3, 38.0))
sketch17.addConstraint(Sketcher.Constraint("DistanceY", 2, 3, -1, 1, 37.0))
sketch17.addConstraint(Sketcher.Constraint("DistanceX", 0, 3, 1, 3, 31.0))
sketch17.addConstraint(Sketcher.Constraint("DistanceX", 0, 3, -1, 1, 16.5))
pocket6 = body.newObject("PartDesign::Pocket", "Pocket005")
pocket6.Profile = sketch17
pocket6.Length = 4

# Sketch on XY plane
sketch18 = body.newObject("Sketcher::SketchObject", "Sketch017")
sketch18.AttachmentSupport = (doc.getObject("XY_Plane"), [""])
sketch18.MapMode = "FlatFace"
sketch18.AttachmentOffset = App.Placement(V(0, 0, 18), App.Rotation())
sketch18.addGeometry(Part.Circle(V(0, -70.6, 0), V(0, 0, 1), 3), False)
sketch18.addGeometry(Part.Circle(V(0, -70.6, 0), V(0, 0, 1), 1.5), False)
sketch18.addConstraint(Sketcher.Constraint("Coincident", 1, 3, 0, 3))
sketch18.addConstraint(Sketcher.Constraint("PointOnObject", 0, 3, -2))
sketch18.addConstraint(Sketcher.Constraint("Diameter", 0, 6.0))
sketch18.addConstraint(Sketcher.Constraint("Diameter", 1, 3.0))
sketch18.addConstraint(Sketcher.Constraint("DistanceY", 0, 3, -1, 1, 70.629942))
pocket7 = body.newObject("PartDesign::Pocket", "Pocket006")
pocket7.Profile = sketch18
pocket7.Length = 5

# Sketch on XY plane
sketch19 = body.newObject("Sketcher::SketchObject", "Sketch018")
sketch19.AttachmentSupport = (doc.getObject("XY_Plane"), [""])
sketch19.MapMode = "FlatFace"
sketch19.AttachmentOffset = App.Placement(V(0, 0, 18), App.Rotation())
sketch19.addGeometry(Part.LineSegment(V(-1.8, 40.5, 0), V(0.2, 40.5, 0)), False)
sketch19.addGeometry(Part.LineSegment(V(0.2, 40.5, 0), V(0.2, 48.4, 0)), False)
sketch19.addGeometry(Part.LineSegment(V(0.2, 48.4, 0), V(-1.8, 48.4, 0)), False)
sketch19.addGeometry(Part.LineSegment(V(-1.8, 48.4, 0), V(-1.8, 40.5, 0)), False)
sketch19.addGeometry(Part.LineSegment(V(-1.8, 48.4, 0), V(-1.8, 40.5, 0)), True)  # axis
sketch19.addConstraint(Sketcher.Constraint("Coincident", 0, 2, 1, 1))
sketch19.addConstraint(Sketcher.Constraint("Coincident", 1, 2, 2, 1))
sketch19.addConstraint(Sketcher.Constraint("Coincident", 2, 2, 3, 1))
sketch19.addConstraint(Sketcher.Constraint("Coincident", 3, 2, 0, 1))
sketch19.addConstraint(Sketcher.Constraint("Horizontal", 0))
sketch19.addConstraint(Sketcher.Constraint("Vertical", 1))
sketch19.addConstraint(Sketcher.Constraint("Horizontal", 2))
sketch19.addConstraint(Sketcher.Constraint("Vertical", 3))
sketch19.addConstraint(Sketcher.Constraint("Vertical", 4))
sketch19.addConstraint(Sketcher.Constraint("Coincident", 4, 1, 2, 2))
sketch19.addConstraint(Sketcher.Constraint("Horizontal", 0, 2, 4, 2))
sketch19.addConstraint(Sketcher.Constraint("DistanceX", 0, 1, 0, 2, 2.0))
sketch19.addConstraint(Sketcher.Constraint("DistanceX", -1, 1, 0, 2, 0.2))
sketch19.addConstraint(Sketcher.Constraint("DistanceY", -1, 1, 0, 2, 40.5))
sketch19.addConstraint(Sketcher.Constraint("DistanceY", 1, 1, 1, 2, 7.870058))
groove = body.newObject("PartDesign::Groove", "Groove")
groove.Profile = sketch19
groove.ReferenceAxis = (sketch19, ["Axis0"])
groove.Angle = 360

# Sketch on XY plane
sketch20 = body.newObject("Sketcher::SketchObject", "Sketch019")
sketch20.AttachmentSupport = (doc.getObject("XY_Plane"), [""])
sketch20.MapMode = "FlatFace"
sketch20.AttachmentOffset = App.Placement(V(0, 0, 5), App.Rotation())
sketch20.addGeometry(Part.LineSegment(V(-6, -40.5, 0), V(-6, -44.5, 0)), False)
sketch20.addGeometry(Part.LineSegment(V(-6, -44.5, 0), V(10, -44.5, 0)), False)
sketch20.addGeometry(Part.LineSegment(V(10, -44.5, 0), V(10, -40.5, 0)), False)
sketch20.addGeometry(Part.LineSegment(V(10, -40.5, 0), V(-6, -40.5, 0)), False)
sketch20.addConstraint(Sketcher.Constraint("Coincident", 0, 2, 1, 1))
sketch20.addConstraint(Sketcher.Constraint("Coincident", 1, 2, 2, 1))
sketch20.addConstraint(Sketcher.Constraint("Coincident", 2, 2, 3, 1))
sketch20.addConstraint(Sketcher.Constraint("Coincident", 3, 2, 0, 1))
sketch20.addConstraint(Sketcher.Constraint("Vertical", 0))
sketch20.addConstraint(Sketcher.Constraint("Horizontal", 1))
sketch20.addConstraint(Sketcher.Constraint("Vertical", 2))
sketch20.addConstraint(Sketcher.Constraint("Horizontal", 3))
sketch20.addConstraint(Sketcher.Constraint("DistanceX", 1, 1, 1, 2, 16.0))
sketch20.addConstraint(Sketcher.Constraint("DistanceY", 0, 2, 0, 1, 4.0))
sketch20.addConstraint(Sketcher.Constraint("DistanceX", 0, 2, -1, 1, 6.0))
sketch20.addConstraint(Sketcher.Constraint("DistanceY", 0, 2, -1, 1, 44.5))
pocket8 = body.newObject("PartDesign::Pocket", "Pocket007")
pocket8.Profile = sketch20
pocket8.Length = 5

doc.recompute()
